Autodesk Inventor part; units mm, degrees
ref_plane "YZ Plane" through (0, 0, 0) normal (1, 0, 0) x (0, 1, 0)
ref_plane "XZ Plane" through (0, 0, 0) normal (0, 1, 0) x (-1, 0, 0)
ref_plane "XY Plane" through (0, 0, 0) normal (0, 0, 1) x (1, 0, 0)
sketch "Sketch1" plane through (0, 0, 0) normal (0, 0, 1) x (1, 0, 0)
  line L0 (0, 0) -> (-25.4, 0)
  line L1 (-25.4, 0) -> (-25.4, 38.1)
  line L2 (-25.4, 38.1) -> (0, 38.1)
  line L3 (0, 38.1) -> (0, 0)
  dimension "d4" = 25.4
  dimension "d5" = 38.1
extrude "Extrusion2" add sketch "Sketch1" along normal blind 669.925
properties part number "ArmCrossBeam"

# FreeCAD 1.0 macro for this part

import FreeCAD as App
import Part
import Sketcher

V = App.Vector
Q = App.Units.Quantity

doc = App.newDocument("Part")
params = doc.addObject("Spreadsheet::Sheet", "Params")
for row, (alias, value) in enumerate([
    ("sketch1_width", "1 in"),
    ("sketch1_height", "1.5 in"),
    ("pad1_length", "26.375 in"),
], start=1):
    params.set(f"A{row}", alias)
    params.set(f"B{row}", "=" + value)
    params.setAlias(f"B{row}", alias)

body = doc.addObject("PartDesign::Body", "Body")

sketch1 = doc.addObject("Sketcher::SketchObject", "Sketch")
body.addObject(sketch1)
sketch1.AttachmentSupport = (doc.XY_Plane, [""])
sketch1.MapMode = "FlatFace"
sketch1.addGeometry([
    Part.LineSegment(V(-25.4, 0, 0), V(0, 0, 0)),
    Part.LineSegment(V(0, 0, 0), V(0, 38.1, 0)),
    Part.LineSegment(V(0, 38.1, 0), V(-25.4, 38.1, 0)),
    Part.LineSegment(V(-25.4, 38.1, 0), V(-25.4, 0, 0)),
], False)
sketch1.addConstraint([
    Sketcher.Constraint("Coincident", 0, 2, 1, 1),
    Sketcher.Constraint("Coincident", 1, 2, 2, 1),
    Sketcher.Constraint("Coincident", 2, 2, 3, 1),
    Sketcher.Constraint("Coincident", 3, 2, 0, 1),
    Sketcher.Constraint("Horizontal", 0),
    Sketcher.Constraint("Vertical", 1),
    Sketcher.Constraint("Horizontal", 2),
    Sketcher.Constraint("Vertical", 3),
    Sketcher.Constraint("Coincident", 0, 2, -1, 1),
    Sketcher.Constraint("DistanceX", 0, 1, 0, 2, Q("1 in")),
    Sketcher.Constraint("DistanceY", 1, 1, 1, 2, Q("1.5 in")),
])
sketch1.setExpression("Constraints[9]", "Params.sketch1_width")
sketch1.setExpression("Constraints[10]", "Params.sketch1_height")
pad1 = doc.addObject("PartDesign::Pad", "Pad")
body.addObject(pad1)
pad1.Profile = sketch1
pad1.setExpression("Length", "Params.pad1_length")

doc.recompute()
